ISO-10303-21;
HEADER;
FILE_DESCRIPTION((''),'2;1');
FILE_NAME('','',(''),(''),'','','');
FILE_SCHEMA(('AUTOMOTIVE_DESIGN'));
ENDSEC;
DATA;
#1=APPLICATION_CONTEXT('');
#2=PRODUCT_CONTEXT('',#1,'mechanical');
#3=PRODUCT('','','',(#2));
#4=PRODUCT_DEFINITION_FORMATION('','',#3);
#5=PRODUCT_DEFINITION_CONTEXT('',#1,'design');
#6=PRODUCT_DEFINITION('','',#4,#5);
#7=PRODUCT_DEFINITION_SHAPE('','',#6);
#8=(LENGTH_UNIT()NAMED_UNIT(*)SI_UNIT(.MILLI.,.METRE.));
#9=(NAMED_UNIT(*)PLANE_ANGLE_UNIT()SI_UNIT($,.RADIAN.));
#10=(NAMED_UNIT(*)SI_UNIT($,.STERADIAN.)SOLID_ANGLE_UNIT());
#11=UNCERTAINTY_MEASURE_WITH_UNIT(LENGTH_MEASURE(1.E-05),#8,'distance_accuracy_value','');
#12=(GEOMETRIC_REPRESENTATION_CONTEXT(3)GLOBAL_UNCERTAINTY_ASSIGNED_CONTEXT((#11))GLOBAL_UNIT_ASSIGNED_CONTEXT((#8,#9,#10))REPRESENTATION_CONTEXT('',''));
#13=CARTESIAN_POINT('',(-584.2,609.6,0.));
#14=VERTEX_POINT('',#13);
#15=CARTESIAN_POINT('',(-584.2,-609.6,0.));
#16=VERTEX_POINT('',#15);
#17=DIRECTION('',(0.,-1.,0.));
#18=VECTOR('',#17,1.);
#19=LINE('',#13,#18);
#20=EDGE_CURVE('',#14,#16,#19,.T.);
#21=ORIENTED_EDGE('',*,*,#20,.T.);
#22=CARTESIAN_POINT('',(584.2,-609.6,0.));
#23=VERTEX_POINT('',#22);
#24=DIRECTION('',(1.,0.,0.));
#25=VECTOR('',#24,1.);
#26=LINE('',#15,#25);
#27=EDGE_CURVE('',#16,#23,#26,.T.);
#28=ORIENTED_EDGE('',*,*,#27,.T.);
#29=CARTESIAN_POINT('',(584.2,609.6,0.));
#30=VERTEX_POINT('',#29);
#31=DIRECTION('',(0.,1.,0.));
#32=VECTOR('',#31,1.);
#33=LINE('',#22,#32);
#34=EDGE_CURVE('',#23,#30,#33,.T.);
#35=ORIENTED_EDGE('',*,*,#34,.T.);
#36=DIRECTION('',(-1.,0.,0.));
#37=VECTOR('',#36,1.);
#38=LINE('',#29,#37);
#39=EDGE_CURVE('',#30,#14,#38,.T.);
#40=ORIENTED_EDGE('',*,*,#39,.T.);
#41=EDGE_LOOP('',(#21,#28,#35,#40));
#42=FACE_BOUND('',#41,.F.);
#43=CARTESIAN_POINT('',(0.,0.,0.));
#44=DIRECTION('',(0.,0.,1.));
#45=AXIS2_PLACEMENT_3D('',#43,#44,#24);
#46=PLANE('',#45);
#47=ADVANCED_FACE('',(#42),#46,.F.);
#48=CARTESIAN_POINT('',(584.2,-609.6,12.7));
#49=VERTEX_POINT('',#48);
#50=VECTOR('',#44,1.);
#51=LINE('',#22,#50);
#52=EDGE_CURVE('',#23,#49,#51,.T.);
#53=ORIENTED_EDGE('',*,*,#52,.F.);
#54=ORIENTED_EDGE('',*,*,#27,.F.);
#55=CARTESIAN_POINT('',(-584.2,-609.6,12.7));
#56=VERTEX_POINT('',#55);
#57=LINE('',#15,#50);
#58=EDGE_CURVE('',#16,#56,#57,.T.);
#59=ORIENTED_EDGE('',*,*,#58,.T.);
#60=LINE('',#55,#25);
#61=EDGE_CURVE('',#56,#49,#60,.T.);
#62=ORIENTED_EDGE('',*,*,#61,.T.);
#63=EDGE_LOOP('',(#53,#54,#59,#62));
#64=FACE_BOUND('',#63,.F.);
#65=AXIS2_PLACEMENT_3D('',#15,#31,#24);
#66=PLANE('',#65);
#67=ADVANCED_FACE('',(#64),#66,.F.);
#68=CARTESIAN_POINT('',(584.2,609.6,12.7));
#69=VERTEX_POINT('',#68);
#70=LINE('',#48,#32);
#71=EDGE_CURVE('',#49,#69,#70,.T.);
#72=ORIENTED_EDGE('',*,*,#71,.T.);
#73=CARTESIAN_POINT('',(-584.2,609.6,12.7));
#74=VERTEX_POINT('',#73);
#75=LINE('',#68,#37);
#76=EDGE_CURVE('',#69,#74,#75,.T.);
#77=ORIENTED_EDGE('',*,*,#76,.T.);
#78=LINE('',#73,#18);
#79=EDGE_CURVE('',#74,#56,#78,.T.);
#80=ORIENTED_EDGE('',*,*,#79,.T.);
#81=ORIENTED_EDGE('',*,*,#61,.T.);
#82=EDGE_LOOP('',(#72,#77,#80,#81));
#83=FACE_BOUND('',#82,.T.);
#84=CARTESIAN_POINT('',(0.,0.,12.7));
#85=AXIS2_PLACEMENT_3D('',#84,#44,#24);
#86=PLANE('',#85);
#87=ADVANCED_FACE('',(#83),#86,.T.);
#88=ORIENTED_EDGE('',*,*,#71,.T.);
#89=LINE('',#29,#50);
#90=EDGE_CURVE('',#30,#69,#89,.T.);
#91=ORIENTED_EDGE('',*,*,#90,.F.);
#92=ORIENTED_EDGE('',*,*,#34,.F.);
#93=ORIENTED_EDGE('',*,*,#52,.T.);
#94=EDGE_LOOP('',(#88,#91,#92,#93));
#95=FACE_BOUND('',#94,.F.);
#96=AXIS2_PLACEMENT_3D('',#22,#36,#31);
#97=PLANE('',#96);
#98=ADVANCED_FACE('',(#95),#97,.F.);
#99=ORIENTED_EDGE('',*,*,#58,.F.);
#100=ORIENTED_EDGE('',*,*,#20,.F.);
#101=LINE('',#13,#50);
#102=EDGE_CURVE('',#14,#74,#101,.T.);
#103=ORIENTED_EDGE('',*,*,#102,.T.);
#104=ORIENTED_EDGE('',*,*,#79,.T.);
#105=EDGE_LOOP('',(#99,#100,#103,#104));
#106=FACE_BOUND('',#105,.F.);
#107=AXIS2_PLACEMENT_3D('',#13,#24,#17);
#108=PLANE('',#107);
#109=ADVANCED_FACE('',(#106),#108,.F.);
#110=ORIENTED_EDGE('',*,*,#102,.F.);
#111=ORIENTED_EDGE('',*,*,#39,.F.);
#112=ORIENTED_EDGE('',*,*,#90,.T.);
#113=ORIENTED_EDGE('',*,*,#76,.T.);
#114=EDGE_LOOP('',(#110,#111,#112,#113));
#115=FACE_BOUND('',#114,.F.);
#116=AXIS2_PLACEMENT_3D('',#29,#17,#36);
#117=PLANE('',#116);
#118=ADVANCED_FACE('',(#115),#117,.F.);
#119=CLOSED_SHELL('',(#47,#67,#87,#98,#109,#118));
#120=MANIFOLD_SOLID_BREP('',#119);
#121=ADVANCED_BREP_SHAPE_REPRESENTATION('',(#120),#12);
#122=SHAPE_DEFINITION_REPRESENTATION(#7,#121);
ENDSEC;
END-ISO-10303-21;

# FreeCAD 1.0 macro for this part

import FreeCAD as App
import Part
import Sketcher
Q = App.Units.Quantity


def add_polygon(sketch, points):
    """Adds a closed chain of lines whose ends are joined by coincident constraints."""
    first, n = sketch.GeometryCount, len(points)
    for a, b in zip(points, points[1:] + points[:1]):
        sketch.addGeometry(Part.LineSegment(App.Vector(*a, 0), App.Vector(*b, 0)), False)
    for i in range(n):
        sketch.addConstraint(Sketcher.Constraint("Coincident", first + i, 2, first + (i + 1) % n, 1))

doc = App.newDocument("Part")
body = doc.addObject("PartDesign::Body", "Body")

sketch1 = doc.addObject("Sketcher::SketchObject", "Sketch")
body.addObject(sketch1)
sketch1.AttachmentSupport = (doc.XY_Plane, [""])
sketch1.MapMode = "FlatFace"
add_polygon(sketch1, [(-584.2, 609.6), (-584.2, -609.6), (584.2, -609.6), (584.2, 609.6)])
sketch1.addConstraint(Sketcher.Constraint("Vertical", 0))
sketch1.addConstraint(Sketcher.Constraint("Horizontal", 1))
sketch1.addConstraint(Sketcher.Constraint("Vertical", 2))
sketch1.addConstraint(Sketcher.Constraint("Horizontal", 3))
sketch1.addConstraint(Sketcher.Constraint("Symmetric", 0, 2, 2, 2, -1, 1))
sketch1.addConstraint(Sketcher.Constraint("DistanceX", 1, 1, 1, 2, Q("46 in")))
sketch1.addConstraint(Sketcher.Constraint("DistanceY", 0, 2, 0, 1, Q("48 in")))
pad1 = doc.addObject("PartDesign::Pad", "Pad")
body.addObject(pad1)
pad1.Profile = sketch1
pad1.Length = Q("0.5 in")

doc.recompute()
